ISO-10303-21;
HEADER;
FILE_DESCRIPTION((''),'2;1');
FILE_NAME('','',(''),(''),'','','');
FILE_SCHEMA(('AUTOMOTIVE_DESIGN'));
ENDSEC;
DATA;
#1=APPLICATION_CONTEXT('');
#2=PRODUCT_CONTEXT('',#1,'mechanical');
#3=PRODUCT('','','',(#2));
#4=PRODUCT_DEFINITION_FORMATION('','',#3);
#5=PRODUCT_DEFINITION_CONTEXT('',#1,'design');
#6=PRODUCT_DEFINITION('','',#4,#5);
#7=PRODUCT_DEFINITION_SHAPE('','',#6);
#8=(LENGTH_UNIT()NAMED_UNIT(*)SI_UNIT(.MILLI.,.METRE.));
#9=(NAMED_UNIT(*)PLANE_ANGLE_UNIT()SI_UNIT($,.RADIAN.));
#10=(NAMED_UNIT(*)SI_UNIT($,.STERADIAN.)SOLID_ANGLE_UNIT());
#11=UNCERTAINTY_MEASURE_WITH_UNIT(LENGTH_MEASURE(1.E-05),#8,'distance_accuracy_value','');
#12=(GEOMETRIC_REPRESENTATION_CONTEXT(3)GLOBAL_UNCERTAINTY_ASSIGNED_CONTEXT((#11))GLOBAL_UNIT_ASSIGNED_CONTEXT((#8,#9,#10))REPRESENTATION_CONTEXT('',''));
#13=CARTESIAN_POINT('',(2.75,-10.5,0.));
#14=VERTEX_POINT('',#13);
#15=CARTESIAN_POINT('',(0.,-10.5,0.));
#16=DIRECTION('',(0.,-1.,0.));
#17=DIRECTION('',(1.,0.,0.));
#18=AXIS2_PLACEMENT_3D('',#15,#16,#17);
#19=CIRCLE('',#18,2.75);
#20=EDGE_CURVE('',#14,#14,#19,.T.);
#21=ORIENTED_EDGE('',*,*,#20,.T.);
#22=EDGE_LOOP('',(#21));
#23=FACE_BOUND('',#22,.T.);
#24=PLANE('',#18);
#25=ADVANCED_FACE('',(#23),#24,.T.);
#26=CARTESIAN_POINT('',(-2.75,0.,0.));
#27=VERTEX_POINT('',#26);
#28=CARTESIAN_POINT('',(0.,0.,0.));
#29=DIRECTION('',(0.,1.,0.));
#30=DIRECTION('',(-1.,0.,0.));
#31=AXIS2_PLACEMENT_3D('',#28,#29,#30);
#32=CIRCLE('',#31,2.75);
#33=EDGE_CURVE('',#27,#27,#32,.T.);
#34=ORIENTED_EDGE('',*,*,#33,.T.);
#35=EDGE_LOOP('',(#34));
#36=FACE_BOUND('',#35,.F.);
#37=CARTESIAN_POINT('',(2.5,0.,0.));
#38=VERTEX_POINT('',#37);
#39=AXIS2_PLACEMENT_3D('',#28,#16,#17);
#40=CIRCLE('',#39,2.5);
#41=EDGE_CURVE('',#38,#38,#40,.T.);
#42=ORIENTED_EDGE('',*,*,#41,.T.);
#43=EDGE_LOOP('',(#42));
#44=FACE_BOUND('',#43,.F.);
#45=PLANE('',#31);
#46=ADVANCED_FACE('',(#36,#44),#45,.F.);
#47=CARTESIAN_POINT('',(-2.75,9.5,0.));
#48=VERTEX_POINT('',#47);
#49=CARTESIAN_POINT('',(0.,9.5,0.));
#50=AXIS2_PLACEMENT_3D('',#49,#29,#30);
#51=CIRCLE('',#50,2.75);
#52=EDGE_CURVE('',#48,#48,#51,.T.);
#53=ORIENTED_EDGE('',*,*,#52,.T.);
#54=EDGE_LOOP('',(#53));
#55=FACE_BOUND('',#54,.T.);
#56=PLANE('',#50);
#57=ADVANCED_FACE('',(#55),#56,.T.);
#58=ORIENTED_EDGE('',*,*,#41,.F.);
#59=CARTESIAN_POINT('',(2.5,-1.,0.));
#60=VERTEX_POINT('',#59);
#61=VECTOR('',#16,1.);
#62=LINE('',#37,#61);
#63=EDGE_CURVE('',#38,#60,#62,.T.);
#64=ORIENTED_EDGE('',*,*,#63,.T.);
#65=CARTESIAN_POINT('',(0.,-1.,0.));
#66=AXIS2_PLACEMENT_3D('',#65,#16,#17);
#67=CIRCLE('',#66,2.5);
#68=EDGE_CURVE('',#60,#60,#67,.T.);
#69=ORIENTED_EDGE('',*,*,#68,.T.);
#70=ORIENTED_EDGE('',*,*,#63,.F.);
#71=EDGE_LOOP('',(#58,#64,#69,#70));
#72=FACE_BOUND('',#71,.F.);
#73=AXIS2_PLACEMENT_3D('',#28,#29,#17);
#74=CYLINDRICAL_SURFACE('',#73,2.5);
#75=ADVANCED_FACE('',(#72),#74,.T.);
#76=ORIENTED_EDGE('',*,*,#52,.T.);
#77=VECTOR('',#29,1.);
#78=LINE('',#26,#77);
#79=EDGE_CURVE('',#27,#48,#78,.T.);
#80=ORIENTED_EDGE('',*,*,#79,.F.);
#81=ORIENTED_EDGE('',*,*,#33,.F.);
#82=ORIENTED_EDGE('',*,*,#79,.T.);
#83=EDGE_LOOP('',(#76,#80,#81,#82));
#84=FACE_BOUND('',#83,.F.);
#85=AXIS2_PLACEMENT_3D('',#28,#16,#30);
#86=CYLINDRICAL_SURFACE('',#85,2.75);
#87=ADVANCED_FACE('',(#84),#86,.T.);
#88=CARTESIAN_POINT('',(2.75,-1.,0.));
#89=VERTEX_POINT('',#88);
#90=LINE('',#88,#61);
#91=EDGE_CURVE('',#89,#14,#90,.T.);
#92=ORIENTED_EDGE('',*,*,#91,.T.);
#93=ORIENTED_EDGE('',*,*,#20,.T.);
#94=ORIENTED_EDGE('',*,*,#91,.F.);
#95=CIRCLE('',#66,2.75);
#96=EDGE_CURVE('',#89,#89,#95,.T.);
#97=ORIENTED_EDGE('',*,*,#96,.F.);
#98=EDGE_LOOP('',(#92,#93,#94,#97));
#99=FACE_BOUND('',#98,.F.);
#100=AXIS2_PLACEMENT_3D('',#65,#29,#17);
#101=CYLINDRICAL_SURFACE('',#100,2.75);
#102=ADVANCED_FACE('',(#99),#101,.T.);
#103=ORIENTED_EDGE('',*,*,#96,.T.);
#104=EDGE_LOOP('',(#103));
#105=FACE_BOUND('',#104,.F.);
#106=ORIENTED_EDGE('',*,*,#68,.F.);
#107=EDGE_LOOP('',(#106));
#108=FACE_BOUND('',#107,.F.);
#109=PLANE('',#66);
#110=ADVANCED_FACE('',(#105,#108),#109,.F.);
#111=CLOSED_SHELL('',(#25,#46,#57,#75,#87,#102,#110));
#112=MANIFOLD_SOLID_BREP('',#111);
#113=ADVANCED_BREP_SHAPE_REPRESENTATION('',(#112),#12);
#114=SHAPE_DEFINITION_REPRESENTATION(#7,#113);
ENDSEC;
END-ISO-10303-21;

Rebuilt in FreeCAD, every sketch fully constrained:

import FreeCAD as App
import Part
import Sketcher

V = App.Vector
Q = App.Units.Quantity

doc = App.newDocument("Part")
params = doc.addObject("Spreadsheet::Sheet", "Params")
for row, (alias, value) in enumerate([
    ("sketch1_diameter", "5 mm"),
    ("pad1_length", "1 mm"),
    ("sketch2_diameter", "5.5 mm"),
    ("pad2_length", "9.5 mm"),
    ("sketch3_diameter", "5.5 mm"),
    ("pad3_length", "9.5 mm"),
], start=1):
    params.set(f"A{row}", alias)
    params.set(f"B{row}", "=" + value)
    params.setAlias(f"B{row}", alias)

body = doc.addObject("PartDesign::Body", "Body")

# Sketch on XZ plane
sketch1 = doc.addObject("Sketcher::SketchObject", "Sketch")
body.addObject(sketch1)
sketch1.AttachmentSupport = (doc.XZ_Plane, [""])
sketch1.MapMode = "FlatFace"
sketch1.addGeometry(Part.Circle(V(0, 0, 0), V(0, 0, 1), 2.5), False)
sketch1.addConstraint([
    Sketcher.Constraint("Coincident", 0, 3, -1, 1),
    Sketcher.Constraint("Diameter", 0, Q("5 mm")),
])
sketch1.setExpression("Constraints[1]", "Params.sketch1_diameter")
pad1 = doc.addObject("PartDesign::Pad", "Pad")
body.addObject(pad1)
pad1.Profile = sketch1
pad1.setExpression("Length", "Params.pad1_length")

# Sketch on XZ plane
sketch2 = doc.addObject("Sketcher::SketchObject", "Sketch001")
body.addObject(sketch2)
sketch2.AttachmentSupport = (doc.XZ_Plane, [""])
sketch2.MapMode = "FlatFace"
sketch2.addGeometry(Part.Circle(V(0, 0, 0), V(0, 0, 1), 2.8), False)
sketch2.addConstraint([
    Sketcher.Constraint("Coincident", 0, 3, -1, 1),
    Sketcher.Constraint("Diameter", 0, Q("5.5 mm")),
])
sketch2.setExpression("Constraints[1]", "Params.sketch2_diameter")
pad2 = doc.addObject("PartDesign::Pad", "Pad001")
body.addObject(pad2)
pad2.Profile = sketch2
pad2.setExpression("Length", "Params.pad2_length")
pad2.Reversed = True

# Sketch on XZ plane
sketch3 = doc.addObject("Sketcher::SketchObject", "Sketch002")
body.addObject(sketch3)
sketch3.AttachmentSupport = (doc.XZ_Plane, [""])
sketch3.MapMode = "FlatFace"
sketch3.AttachmentOffset = App.Placement(V(0, 0, 1), App.Rotation())
sketch3.addGeometry(Part.Circle(V(0, 0, 0), V(0, 0, 1), 2.8), False)
sketch3.addConstraint([
    Sketcher.Constraint("Coincident", 0, 3, -1, 1),
    Sketcher.Constraint("Diameter", 0, Q("5.5 mm")),
])
sketch3.setExpression("Constraints[1]", "Params.sketch3_diameter")
pad3 = doc.addObject("PartDesign::Pad", "Pad002")
body.addObject(pad3)
pad3.Profile = sketch3
pad3.setExpression("Length", "Params.pad3_length")

doc.recompute()
